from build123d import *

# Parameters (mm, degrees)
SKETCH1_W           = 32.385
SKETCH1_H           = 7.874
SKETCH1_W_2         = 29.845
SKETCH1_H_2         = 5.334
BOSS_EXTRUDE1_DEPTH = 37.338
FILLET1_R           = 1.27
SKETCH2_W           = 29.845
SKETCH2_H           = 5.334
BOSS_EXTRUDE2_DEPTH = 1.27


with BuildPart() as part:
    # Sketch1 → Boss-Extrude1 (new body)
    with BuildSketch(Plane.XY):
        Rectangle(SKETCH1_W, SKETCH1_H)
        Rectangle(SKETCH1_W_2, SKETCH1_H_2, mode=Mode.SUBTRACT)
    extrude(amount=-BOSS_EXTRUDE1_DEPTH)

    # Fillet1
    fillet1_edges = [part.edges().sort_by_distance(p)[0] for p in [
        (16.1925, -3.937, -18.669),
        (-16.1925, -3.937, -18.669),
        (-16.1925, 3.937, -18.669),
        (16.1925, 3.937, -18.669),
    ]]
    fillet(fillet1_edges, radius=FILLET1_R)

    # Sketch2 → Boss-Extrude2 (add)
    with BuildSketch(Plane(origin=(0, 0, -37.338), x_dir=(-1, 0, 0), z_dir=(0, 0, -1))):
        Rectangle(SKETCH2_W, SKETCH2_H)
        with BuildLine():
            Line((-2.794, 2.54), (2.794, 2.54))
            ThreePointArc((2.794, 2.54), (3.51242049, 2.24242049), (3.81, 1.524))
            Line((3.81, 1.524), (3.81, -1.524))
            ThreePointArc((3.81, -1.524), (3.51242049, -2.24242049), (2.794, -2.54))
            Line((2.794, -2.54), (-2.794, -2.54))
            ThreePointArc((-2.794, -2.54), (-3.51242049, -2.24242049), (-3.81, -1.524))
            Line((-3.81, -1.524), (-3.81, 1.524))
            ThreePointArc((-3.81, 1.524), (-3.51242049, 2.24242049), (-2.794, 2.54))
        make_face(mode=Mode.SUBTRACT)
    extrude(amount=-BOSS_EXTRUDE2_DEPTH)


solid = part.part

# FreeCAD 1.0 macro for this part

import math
import FreeCAD as App
import Part
import Sketcher
from FreeCAD import Vector
Q = App.Units.Quantity


def edges_at(feature, points):
    """Names of the edges that pass closest to the given points."""
    edges = feature.Shape.Edges
    near = lambda p: min(range(len(edges)), key=lambda i: edges[i].distToShape(Part.Vertex(*p))[0])
    return sorted({f"Edge{near(p) + 1}" for p in points})


def add_polygon(sketch, points):
    """Adds a closed chain of lines whose ends are joined by coincident constraints."""
    first, n = sketch.GeometryCount, len(points)
    for a, b in zip(points, points[1:] + points[:1]):
        sketch.addGeometry(Part.LineSegment(App.Vector(*a, 0), App.Vector(*b, 0)), False)
    for i in range(n):
        sketch.addConstraint(Sketcher.Constraint("Coincident", first + i, 2, first + (i + 1) % n, 1))

doc = App.newDocument("Part")
body = doc.addObject("PartDesign::Body", "Body")

# Sketch on XY plane
sketch1 = body.newObject("Sketcher::SketchObject", "Sketch")
sketch1.AttachmentSupport = (doc.getObject("XY_Plane"), [""])
sketch1.MapMode = "FlatFace"
add_polygon(sketch1, [(-16, 4), (-16, -4), (16, -4), (16, 4)])  # lines 0-3
add_polygon(sketch1, [(15, -3), (-15, -3), (-15, 3), (15, 3)])  # lines 4-7
sketch1.addConstraint([
    Sketcher.Constraint("Vertical", 0),
    Sketcher.Constraint("Horizontal", 1),
    Sketcher.Constraint("Vertical", 2),
    Sketcher.Constraint("Horizontal", 3),
    Sketcher.Constraint("Horizontal", 4),
    Sketcher.Constraint("Vertical", 5),
    Sketcher.Constraint("Horizontal", 6),
    Sketcher.Constraint("Vertical", 7),
    Sketcher.Constraint("Symmetric", 0, 2, 2, 2, -1, 1),
    Sketcher.Constraint("Symmetric", 4, 2, 6, 2, -1, 1),
    Sketcher.Constraint("DistanceY", 0, 2, 0, 1, Q("0.31 in")),
    Sketcher.Constraint("DistanceY", 5, 1, 5, 2, Q("0.21 in")),
    Sketcher.Constraint("DistanceX", 1, 1, 1, 2, Q("1.275 in")),
    Sketcher.Constraint("DistanceX", 4, 2, 4, 1, Q("1.175 in")),
])
pad1 = body.newObject("PartDesign::Pad", "Pad")
pad1.Profile = sketch1
pad1.Length = Q("1.47 in")
pad1.Reversed = True
doc.recompute()

fillet = body.newObject("PartDesign::Fillet", "Fillet")
fillet.Base = (pad1, edges_at(pad1, [
    (16.192, -3.937, -18.669),
    (-16.192, -3.937, -18.669),
    (-16.192, 3.937, -18.669),
    (16.192, 3.937, -18.669),
]))
fillet.Radius = Q("0.05 in")

# Sketch on XY plane
sketch2 = body.newObject("Sketcher::SketchObject", "Sketch001")
sketch2.AttachmentSupport = (doc.getObject("XY_Plane"), [""])
sketch2.MapMode = "FlatFace"
sketch2.AttachmentOffset = App.Placement(Vector(0, 0, -1.47 * 25.4), App.Rotation())
add_polygon(sketch2, [(14.9, 2.7), (14.9, -2.7), (-14.9, -2.7), (-14.9, 2.7)])  # lines 0-3
sketch2.addGeometry(Part.ArcOfCircle(Part.Circle(Vector(2.8, 1.5, 0), Vector(0, 0, 1), 1), math.radians(0), math.radians(90)), False)  # 4
sketch2.addGeometry(Part.LineSegment(Vector(2.8, 2.5, 0), Vector(-2.8, 2.5, 0)), False)  # 5
sketch2.addGeometry(Part.ArcOfCircle(Part.Circle(Vector(-2.8, 1.5, 0), Vector(0, 0, 1), 1), math.radians(90), math.radians(180)), False)  # 6
sketch2.addGeometry(Part.LineSegment(Vector(-3.8, 1.5, 0), Vector(-3.8, -1.5, 0)), False)  # 7
sketch2.addGeometry(Part.ArcOfCircle(Part.Circle(Vector(-2.8, -1.5, 0), Vector(0, 0, 1), 1), math.radians(180), math.radians(270)), False)  # 8
sketch2.addGeometry(Part.LineSegment(Vector(-2.8, -2.5, 0), Vector(2.8, -2.5, 0)), False)  # 9
sketch2.addGeometry(Part.ArcOfCircle(Part.Circle(Vector(2.8, -1.5, 0), Vector(0, 0, 1), 1), math.radians(-90), math.radians(0)), False)  # 10
sketch2.addGeometry(Part.LineSegment(Vector(3.8, -1.5, 0), Vector(3.8, 1.5, 0)), False)  # 11
sketch2.addConstraint([
    Sketcher.Constraint("Tangent", 4, 2, 5, 1),
    Sketcher.Constraint("Tangent", 5, 2, 6, 1),
    Sketcher.Constraint("Tangent", 6, 2, 7, 1),
    Sketcher.Constraint("Tangent", 7, 2, 8, 1),
    Sketcher.Constraint("Tangent", 8, 2, 9, 1),
    Sketcher.Constraint("Tangent", 9, 2, 10, 1),
    Sketcher.Constraint("Tangent", 10, 2, 11, 1),
    Sketcher.Constraint("Tangent", 11, 2, 4, 1),
    Sketcher.Constraint("Vertical", 0),
    Sketcher.Constraint("Horizontal", 1),
    Sketcher.Constraint("Vertical", 2),
    Sketcher.Constraint("Horizontal", 3),
    Sketcher.Constraint("Horizontal", 5),
    Sketcher.Constraint("Vertical", 7),
    Sketcher.Constraint("Horizontal", 9),
    Sketcher.Constraint("Vertical", 11),
    Sketcher.Constraint("Equal", 4, 6),
    Sketcher.Constraint("Equal", 6, 8),
    Sketcher.Constraint("Equal", 8, 10),
    Sketcher.Constraint("Symmetric", 4, 3, 8, 3, -1, 1),
    Sketcher.Constraint("Symmetric", 0, 2, 2, 2, -1, 1),
    Sketcher.Constraint("Radius", 4, Q("0.04 in")),
    Sketcher.Constraint("DistanceX", 5, 2, 5, 1, Q("0.22 in")),
    Sketcher.Constraint("DistanceY", 0, 2, 0, 1, Q("0.21 in")),
    Sketcher.Constraint("DistanceY", 7, 2, 7, 1, Q("0.12 in")),
    Sketcher.Constraint("DistanceX", 1, 2, 1, 1, Q("1.175 in")),
])
pad2 = body.newObject("PartDesign::Pad", "Pad001")
pad2.Profile = sketch2
pad2.Length = Q("0.05 in")

doc.recompute()
